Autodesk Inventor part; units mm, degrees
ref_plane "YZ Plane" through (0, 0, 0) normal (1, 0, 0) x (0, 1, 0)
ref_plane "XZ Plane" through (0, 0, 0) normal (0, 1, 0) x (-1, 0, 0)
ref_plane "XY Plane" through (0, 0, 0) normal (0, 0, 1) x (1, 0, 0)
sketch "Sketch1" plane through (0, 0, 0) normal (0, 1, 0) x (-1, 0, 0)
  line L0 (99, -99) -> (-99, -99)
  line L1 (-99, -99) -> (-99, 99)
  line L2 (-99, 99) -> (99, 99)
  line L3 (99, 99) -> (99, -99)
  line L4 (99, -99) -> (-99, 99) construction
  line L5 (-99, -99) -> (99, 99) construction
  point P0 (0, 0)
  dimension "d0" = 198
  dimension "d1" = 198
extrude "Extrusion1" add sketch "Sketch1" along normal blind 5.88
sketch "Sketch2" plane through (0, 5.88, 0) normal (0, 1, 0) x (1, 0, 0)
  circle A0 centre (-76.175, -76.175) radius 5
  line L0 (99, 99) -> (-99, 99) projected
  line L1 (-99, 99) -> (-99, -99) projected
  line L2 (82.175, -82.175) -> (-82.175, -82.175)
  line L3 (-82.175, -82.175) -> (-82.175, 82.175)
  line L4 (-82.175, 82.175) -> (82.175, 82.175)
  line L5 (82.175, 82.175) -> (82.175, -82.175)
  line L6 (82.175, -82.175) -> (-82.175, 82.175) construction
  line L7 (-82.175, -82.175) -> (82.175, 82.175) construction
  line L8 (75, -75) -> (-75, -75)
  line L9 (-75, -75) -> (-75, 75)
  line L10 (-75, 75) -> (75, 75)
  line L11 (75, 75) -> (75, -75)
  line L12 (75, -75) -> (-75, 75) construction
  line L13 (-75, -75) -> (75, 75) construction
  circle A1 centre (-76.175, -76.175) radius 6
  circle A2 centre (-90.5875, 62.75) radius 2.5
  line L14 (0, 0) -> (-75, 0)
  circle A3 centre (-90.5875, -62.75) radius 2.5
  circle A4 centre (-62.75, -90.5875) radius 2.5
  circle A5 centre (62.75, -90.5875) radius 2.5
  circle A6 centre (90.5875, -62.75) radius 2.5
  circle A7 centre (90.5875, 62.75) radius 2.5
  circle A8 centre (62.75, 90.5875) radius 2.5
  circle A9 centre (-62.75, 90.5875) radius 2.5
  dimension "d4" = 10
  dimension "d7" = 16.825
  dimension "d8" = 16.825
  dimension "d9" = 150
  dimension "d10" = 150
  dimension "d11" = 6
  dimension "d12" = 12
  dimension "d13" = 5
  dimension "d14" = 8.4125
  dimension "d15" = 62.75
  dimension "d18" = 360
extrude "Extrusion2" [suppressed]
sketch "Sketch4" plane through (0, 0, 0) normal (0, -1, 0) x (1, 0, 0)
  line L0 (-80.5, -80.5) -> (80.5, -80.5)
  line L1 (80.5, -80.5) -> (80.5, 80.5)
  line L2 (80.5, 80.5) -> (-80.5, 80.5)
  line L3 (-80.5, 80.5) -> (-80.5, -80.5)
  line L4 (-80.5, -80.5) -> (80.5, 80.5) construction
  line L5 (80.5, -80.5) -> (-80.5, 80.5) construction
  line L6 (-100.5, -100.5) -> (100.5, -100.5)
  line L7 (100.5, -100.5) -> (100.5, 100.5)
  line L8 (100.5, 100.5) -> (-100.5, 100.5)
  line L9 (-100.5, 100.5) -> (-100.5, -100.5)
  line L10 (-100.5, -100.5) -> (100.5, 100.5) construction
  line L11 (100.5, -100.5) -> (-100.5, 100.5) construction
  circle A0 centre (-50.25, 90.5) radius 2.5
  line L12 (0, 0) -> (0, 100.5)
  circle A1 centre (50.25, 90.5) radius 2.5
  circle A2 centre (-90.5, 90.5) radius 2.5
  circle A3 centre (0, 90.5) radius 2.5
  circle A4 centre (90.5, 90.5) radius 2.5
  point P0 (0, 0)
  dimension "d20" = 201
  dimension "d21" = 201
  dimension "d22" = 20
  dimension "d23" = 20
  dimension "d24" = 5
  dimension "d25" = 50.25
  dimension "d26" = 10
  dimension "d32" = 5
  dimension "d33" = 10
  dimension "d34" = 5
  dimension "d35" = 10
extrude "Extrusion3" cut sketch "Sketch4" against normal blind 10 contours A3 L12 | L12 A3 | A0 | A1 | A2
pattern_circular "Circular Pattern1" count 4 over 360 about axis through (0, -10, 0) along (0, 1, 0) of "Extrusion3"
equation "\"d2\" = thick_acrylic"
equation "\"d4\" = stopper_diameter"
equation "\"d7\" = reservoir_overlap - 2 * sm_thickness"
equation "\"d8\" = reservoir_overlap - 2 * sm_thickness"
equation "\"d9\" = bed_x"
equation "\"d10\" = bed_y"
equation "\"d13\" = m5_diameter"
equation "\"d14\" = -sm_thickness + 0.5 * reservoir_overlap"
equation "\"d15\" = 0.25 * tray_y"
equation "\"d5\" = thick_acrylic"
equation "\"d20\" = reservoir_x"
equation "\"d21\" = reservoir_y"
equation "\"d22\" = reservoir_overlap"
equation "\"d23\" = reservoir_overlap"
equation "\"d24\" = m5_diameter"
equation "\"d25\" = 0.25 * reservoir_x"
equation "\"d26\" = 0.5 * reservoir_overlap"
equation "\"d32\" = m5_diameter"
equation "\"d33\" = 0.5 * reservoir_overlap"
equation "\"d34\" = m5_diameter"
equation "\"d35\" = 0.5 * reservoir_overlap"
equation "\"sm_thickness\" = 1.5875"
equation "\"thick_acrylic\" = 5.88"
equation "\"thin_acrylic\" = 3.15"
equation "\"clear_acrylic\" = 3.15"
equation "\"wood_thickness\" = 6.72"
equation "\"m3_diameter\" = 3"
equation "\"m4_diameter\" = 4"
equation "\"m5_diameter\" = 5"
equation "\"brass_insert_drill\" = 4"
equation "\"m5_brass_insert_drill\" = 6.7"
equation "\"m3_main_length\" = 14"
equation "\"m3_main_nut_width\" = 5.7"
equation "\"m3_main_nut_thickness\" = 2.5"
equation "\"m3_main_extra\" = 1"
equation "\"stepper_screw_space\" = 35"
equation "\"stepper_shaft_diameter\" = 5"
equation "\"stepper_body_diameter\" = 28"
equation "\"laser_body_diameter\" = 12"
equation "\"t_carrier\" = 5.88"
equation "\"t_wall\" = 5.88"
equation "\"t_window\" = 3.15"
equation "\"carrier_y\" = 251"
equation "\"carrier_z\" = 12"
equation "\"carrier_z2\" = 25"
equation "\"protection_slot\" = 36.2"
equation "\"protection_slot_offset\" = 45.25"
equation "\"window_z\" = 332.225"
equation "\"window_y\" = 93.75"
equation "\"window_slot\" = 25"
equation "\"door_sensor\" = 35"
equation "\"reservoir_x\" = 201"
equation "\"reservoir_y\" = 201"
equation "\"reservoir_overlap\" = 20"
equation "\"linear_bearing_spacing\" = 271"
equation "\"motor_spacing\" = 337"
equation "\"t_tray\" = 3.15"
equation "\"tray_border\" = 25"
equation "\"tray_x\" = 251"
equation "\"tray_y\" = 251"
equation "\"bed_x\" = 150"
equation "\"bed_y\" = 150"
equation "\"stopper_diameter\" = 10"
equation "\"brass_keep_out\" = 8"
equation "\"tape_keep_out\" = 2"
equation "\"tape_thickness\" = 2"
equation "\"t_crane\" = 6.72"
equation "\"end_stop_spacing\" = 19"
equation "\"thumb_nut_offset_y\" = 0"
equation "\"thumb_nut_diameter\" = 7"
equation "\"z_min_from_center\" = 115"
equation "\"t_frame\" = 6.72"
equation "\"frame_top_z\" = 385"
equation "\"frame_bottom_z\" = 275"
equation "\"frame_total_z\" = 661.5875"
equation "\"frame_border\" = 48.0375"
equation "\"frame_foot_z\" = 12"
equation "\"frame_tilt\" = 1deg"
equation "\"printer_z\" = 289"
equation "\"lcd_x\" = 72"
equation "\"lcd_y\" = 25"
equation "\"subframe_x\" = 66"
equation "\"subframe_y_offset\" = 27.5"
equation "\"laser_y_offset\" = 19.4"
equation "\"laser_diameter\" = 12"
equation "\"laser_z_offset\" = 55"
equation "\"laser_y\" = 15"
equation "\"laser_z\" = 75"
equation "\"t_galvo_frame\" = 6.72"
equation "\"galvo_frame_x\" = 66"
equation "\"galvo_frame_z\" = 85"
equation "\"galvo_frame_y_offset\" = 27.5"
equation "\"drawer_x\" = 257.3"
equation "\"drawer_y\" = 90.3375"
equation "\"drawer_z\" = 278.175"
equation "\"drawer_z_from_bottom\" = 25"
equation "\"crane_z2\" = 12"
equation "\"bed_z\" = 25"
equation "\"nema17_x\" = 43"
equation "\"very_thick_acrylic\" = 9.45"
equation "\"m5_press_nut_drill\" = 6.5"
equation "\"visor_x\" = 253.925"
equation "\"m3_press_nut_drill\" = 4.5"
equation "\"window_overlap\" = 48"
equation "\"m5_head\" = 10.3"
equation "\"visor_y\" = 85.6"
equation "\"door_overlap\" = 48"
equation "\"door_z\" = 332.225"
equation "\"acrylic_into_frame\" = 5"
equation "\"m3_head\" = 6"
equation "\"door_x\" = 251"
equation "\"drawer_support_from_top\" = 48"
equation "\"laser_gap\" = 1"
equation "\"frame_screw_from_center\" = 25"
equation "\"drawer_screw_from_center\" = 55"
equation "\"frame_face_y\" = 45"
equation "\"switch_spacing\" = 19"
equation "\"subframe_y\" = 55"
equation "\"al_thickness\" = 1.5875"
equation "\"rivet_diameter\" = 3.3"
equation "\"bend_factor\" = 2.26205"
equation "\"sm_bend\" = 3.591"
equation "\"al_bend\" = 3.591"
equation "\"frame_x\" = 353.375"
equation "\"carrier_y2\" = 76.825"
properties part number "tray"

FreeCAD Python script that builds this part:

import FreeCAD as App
import Part
import Sketcher
from FreeCAD import Vector
Q = App.Units.Quantity

doc = App.newDocument("Part")
body = doc.addObject("PartDesign::Body", "Body")

sketch1 = body.newObject("Sketcher::SketchObject", "Sketch")
sketch1.AttachmentSupport = (doc.getObject("XZ_Plane"), [""])
sketch1.MapMode = "FlatFace"
sketch1.addGeometry(Part.LineSegment(Vector(99, -99, 0), Vector(-99, -99, 0)), False)
sketch1.addGeometry(Part.LineSegment(Vector(-99, -99, 0), Vector(-99, 99, 0)), False)
sketch1.addGeometry(Part.LineSegment(Vector(-99, 99, 0), Vector(99, 99, 0)), False)
sketch1.addGeometry(Part.LineSegment(Vector(99, 99, 0), Vector(99, -99, 0)), False)
sketch1.addConstraint(Sketcher.Constraint("Coincident", 0, 2, 1, 1))
sketch1.addConstraint(Sketcher.Constraint("Coincident", 1, 2, 2, 1))
sketch1.addConstraint(Sketcher.Constraint("Coincident", 2, 2, 3, 1))
sketch1.addConstraint(Sketcher.Constraint("Coincident", 3, 2, 0, 1))
sketch1.addConstraint(Sketcher.Constraint("Horizontal", 0))
sketch1.addConstraint(Sketcher.Constraint("Vertical", 1))
sketch1.addConstraint(Sketcher.Constraint("Horizontal", 2))
sketch1.addConstraint(Sketcher.Constraint("Vertical", 3))
sketch1.addConstraint(Sketcher.Constraint("Symmetric", 0, 2, 2, 2, -1, 1))
sketch1.addConstraint(Sketcher.Constraint("Equal", 2, 1))
sketch1.addConstraint(Sketcher.Constraint("DistanceX", 0, 2, 0, 1, Q("198 mm")))
pad1 = body.newObject("PartDesign::Pad", "Pad")
pad1.Profile = sketch1
pad1.Length = 5.88
pad1.Reversed = True

sketch2 = body.newObject("Sketcher::SketchObject", "Sketch001")
sketch2.AttachmentSupport = (doc.getObject("XZ_Plane"), [""])
sketch2.MapMode = "FlatFace"
sketch2.addGeometry(Part.Circle(Vector(0, 90.5, 0), Vector(0, 0, 1), 2.5), False)
sketch2.addGeometry(Part.Circle(Vector(-50.2, 90.5, 0), Vector(0, 0, 1), 2.5), False)
sketch2.addGeometry(Part.Circle(Vector(50.2, 90.5, 0), Vector(0, 0, 1), 2.5), False)
sketch2.addGeometry(Part.Circle(Vector(-90.5, 90.5, 0), Vector(0, 0, 1), 2.5), False)
sketch2.addConstraint(Sketcher.Constraint("Equal", 0, 1))
sketch2.addConstraint(Sketcher.Constraint("Equal", 1, 2))
sketch2.addConstraint(Sketcher.Constraint("Equal", 2, 3))
sketch2.addConstraint(Sketcher.Constraint("Symmetric", 1, 3, 2, 3, -2))
sketch2.addConstraint(Sketcher.Constraint("PointOnObject", 0, 3, -2))
sketch2.addConstraint(Sketcher.Constraint("Horizontal", 0, 3, 1, 3))
sketch2.addConstraint(Sketcher.Constraint("Horizontal", 2, 3, 3, 3))
sketch2.addConstraint(Sketcher.Constraint("Diameter", 0, Q("5 mm")))
sketch2.addConstraint(Sketcher.Constraint("DistanceX", 1, 3, -1, 1, Q("50.25 mm")))
sketch2.addConstraint(Sketcher.Constraint("DistanceY", -1, 1, 0, 3, Q("90.5 mm")))
sketch2.addConstraint(Sketcher.Constraint("DistanceX", 3, 3, -1, 1, Q("90.5 mm")))
pocket1 = body.newObject("PartDesign::Pocket", "Pocket")
pocket1.Profile = sketch2
pocket1.Length = 10
doc.recompute()

polarpattern = body.newObject("PartDesign::PolarPattern", "PolarPattern")
polarpattern.Originals = [pocket1]
polarpattern.Axis = (doc.getObject("Y_Axis"), [""])
polarpattern.Angle = 360
polarpattern.Occurrences = 4
body.Tip = polarpattern

doc.recompute()
